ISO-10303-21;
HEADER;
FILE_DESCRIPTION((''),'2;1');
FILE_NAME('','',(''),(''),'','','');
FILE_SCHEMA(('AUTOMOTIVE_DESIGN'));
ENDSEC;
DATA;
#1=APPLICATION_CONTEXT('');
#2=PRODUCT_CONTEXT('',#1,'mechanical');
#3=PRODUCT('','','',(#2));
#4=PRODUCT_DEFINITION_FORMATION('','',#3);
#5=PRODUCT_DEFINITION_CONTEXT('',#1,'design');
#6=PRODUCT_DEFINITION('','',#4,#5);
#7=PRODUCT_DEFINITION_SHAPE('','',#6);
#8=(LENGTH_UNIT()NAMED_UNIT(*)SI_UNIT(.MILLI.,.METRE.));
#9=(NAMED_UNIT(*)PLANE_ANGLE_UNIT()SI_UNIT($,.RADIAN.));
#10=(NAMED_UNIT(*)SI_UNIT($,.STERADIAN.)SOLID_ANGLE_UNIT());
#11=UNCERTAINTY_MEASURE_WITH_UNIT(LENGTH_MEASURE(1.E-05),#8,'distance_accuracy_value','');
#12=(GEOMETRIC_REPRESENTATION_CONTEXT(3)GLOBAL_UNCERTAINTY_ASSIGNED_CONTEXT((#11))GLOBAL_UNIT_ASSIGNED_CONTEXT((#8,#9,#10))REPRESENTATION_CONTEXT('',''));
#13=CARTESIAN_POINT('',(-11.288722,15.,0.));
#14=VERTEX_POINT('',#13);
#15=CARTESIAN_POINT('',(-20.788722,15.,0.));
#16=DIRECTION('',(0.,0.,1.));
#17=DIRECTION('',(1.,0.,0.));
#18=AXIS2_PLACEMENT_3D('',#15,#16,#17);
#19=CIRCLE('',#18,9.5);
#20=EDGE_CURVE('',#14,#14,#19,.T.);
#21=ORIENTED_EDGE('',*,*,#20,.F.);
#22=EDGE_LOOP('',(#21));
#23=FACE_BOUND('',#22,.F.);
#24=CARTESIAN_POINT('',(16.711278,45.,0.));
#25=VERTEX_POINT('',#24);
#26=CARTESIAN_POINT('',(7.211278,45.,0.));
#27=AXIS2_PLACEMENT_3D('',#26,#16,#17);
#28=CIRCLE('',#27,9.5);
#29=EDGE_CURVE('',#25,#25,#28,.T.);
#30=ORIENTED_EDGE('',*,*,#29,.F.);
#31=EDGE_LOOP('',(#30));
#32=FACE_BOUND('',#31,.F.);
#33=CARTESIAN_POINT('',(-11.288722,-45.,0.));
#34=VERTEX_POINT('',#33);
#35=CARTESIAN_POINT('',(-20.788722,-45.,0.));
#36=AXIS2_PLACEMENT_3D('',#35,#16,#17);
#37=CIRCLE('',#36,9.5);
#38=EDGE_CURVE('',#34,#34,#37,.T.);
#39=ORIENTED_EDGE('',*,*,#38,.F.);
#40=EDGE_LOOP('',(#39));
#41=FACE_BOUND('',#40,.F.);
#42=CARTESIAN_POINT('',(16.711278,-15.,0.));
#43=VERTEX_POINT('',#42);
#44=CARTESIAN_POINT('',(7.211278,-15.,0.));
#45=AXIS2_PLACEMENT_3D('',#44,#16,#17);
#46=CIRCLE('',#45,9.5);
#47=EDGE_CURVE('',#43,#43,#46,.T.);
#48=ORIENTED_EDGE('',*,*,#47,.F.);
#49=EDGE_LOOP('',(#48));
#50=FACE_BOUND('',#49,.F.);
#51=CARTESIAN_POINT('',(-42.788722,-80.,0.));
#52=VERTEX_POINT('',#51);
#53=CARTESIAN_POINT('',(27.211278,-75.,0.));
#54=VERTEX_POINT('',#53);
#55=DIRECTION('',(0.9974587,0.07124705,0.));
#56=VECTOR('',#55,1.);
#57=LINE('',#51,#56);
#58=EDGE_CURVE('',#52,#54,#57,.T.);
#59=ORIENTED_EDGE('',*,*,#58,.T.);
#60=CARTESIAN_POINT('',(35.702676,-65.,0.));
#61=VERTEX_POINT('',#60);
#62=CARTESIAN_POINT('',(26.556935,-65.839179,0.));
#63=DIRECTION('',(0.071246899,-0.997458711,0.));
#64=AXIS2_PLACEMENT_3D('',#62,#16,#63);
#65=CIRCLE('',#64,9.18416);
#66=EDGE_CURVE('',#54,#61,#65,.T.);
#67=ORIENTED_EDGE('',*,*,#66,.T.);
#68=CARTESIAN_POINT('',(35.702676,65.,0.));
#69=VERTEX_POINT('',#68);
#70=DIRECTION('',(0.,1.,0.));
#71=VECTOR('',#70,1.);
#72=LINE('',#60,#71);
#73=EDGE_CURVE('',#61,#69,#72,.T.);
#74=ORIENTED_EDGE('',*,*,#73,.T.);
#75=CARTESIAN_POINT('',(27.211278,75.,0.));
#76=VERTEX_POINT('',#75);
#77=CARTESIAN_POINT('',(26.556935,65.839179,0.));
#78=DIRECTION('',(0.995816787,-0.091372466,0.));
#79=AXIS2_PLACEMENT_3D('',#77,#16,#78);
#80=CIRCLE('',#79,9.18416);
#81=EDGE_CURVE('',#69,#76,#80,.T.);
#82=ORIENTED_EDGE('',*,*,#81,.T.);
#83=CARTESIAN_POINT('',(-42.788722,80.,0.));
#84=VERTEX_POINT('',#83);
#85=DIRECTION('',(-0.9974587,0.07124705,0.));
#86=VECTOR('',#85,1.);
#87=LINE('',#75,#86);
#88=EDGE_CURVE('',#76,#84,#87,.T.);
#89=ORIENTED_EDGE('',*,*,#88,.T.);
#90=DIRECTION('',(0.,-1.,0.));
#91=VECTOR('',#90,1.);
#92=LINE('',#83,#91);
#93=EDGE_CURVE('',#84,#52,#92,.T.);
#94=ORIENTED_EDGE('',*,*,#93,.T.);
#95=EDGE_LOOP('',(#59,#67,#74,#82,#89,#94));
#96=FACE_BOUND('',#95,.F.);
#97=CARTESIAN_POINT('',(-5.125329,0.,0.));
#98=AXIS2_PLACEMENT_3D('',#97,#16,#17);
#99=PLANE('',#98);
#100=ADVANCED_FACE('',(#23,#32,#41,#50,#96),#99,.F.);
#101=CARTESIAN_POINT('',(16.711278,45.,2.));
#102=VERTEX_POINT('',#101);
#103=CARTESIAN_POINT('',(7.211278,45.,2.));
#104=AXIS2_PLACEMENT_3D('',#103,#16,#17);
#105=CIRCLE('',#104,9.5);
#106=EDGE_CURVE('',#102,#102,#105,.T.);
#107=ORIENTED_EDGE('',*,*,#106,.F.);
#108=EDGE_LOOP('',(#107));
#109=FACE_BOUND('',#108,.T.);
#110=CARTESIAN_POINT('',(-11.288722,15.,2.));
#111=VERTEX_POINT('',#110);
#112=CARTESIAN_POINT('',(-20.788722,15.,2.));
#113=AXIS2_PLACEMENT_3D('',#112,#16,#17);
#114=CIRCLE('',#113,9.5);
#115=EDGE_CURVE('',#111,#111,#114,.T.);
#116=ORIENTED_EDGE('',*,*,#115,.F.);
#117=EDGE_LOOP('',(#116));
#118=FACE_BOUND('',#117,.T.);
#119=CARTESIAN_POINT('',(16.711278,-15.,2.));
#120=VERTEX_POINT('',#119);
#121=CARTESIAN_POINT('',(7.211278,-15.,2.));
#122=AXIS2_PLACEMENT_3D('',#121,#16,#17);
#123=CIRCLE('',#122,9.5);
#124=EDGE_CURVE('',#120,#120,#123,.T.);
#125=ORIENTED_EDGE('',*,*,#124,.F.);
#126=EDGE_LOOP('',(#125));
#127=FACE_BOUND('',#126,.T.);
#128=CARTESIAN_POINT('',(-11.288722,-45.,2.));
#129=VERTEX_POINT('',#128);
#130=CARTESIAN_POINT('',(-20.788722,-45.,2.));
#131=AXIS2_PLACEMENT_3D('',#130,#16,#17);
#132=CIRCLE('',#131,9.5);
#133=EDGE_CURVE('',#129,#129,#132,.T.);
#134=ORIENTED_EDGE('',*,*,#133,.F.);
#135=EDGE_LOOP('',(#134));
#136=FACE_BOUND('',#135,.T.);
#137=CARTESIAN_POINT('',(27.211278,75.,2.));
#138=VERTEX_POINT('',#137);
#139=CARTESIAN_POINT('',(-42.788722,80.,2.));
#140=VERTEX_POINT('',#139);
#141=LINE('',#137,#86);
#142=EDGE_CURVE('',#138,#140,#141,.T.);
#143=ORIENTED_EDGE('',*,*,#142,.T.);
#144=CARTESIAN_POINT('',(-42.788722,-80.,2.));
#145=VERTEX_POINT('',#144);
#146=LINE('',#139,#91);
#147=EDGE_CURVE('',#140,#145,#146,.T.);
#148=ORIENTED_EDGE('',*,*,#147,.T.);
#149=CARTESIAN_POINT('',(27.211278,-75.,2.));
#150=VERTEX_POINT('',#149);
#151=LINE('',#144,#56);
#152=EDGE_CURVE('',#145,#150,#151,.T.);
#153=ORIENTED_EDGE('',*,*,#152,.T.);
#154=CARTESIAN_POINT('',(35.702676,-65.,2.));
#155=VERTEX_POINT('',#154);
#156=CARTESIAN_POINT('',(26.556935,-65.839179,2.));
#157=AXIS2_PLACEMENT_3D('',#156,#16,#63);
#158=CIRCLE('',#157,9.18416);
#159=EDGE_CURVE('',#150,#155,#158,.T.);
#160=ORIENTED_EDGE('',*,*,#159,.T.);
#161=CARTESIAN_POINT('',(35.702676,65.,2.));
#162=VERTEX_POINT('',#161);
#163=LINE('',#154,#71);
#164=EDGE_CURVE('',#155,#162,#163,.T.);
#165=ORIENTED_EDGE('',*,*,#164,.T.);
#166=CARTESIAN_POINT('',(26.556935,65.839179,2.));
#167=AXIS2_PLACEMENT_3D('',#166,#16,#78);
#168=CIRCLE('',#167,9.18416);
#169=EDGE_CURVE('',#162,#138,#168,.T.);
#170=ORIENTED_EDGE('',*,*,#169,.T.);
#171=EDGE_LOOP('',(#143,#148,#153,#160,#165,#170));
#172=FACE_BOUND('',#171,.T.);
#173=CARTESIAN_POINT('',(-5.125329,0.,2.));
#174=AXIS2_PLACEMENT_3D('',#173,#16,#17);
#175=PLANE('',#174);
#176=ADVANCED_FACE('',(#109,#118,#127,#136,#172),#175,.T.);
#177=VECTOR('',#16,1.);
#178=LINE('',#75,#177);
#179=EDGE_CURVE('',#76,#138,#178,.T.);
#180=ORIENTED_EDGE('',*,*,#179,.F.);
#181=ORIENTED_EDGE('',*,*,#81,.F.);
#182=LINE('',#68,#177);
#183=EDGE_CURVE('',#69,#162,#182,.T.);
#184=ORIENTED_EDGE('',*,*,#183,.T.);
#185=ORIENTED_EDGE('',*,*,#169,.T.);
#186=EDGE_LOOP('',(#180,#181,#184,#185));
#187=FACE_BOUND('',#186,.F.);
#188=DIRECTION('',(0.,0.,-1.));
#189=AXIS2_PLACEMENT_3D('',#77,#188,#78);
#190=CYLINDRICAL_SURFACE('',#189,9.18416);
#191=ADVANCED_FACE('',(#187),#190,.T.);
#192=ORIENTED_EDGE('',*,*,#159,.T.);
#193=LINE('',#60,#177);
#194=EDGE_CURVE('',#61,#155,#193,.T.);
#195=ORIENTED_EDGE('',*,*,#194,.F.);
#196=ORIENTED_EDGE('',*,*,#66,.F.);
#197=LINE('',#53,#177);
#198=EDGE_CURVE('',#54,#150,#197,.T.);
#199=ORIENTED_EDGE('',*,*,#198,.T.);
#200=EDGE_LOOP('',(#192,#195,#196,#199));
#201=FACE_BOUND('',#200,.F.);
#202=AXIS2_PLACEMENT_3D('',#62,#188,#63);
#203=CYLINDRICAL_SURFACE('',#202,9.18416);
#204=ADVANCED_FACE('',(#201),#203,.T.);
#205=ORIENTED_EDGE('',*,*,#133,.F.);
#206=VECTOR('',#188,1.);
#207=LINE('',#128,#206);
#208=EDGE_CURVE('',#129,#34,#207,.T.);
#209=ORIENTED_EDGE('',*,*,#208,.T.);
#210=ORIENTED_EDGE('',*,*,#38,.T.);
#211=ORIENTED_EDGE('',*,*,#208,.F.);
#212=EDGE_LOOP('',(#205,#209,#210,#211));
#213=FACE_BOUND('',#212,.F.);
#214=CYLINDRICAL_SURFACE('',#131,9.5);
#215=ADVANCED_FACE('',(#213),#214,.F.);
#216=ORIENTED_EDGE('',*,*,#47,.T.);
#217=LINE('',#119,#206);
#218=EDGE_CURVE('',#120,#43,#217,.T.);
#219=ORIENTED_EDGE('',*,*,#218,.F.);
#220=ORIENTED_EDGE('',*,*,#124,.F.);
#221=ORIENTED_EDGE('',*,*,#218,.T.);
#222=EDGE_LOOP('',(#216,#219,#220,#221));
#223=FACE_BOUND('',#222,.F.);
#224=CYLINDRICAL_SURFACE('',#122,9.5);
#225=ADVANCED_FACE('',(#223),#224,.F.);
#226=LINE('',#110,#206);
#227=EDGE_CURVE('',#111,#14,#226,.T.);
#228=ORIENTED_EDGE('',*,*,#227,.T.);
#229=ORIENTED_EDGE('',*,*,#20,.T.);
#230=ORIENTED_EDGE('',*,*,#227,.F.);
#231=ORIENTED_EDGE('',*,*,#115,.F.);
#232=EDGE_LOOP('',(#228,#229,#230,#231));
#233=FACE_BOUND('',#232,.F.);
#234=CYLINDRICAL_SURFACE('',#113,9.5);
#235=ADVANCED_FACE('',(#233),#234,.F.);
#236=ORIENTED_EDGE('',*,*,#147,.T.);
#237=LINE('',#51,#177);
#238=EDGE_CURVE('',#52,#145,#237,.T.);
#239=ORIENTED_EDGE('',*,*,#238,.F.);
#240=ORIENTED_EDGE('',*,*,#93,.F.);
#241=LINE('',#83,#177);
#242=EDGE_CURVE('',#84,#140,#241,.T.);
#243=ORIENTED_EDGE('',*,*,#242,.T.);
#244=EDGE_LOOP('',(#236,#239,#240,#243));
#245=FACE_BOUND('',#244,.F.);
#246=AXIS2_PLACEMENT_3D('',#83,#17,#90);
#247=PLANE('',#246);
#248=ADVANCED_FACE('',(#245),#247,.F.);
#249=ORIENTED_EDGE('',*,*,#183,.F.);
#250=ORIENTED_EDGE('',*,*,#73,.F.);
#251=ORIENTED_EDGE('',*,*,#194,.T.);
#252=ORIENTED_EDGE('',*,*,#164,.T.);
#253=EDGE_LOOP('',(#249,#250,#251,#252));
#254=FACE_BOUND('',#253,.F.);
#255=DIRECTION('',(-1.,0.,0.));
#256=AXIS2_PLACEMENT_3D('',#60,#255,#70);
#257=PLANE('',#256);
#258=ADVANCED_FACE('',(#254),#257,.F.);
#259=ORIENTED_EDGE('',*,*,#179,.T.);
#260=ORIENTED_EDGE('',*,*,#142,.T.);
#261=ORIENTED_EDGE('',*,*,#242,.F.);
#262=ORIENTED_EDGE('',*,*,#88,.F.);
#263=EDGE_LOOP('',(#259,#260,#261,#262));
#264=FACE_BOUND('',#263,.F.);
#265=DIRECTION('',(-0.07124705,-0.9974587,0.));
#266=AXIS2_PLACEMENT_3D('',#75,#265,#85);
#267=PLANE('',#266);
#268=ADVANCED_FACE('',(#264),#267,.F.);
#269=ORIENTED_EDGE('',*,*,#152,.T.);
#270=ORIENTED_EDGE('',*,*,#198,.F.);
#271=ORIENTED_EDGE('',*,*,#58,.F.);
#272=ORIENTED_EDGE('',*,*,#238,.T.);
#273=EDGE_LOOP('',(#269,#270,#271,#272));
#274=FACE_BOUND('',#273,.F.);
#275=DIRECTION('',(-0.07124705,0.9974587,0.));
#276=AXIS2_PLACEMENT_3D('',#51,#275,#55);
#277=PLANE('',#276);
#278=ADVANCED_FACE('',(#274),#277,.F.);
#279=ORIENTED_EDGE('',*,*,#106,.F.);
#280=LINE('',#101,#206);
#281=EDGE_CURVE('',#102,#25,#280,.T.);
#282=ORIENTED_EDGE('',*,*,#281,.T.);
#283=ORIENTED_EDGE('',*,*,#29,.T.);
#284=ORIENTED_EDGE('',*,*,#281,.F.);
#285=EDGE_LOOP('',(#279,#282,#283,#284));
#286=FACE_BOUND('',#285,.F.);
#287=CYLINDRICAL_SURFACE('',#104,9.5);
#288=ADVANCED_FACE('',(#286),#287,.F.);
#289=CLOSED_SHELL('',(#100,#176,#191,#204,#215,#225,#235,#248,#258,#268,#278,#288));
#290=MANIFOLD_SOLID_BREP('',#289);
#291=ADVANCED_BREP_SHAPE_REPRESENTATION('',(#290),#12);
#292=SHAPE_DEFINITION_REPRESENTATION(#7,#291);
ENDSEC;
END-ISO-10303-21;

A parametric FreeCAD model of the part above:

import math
import FreeCAD as App
import Part
import Sketcher
from FreeCAD import Vector

doc = App.newDocument("Part")
body = doc.addObject("PartDesign::Body", "Body")

# Sketch on XY plane
sketch1 = doc.addObject("Sketcher::SketchObject", "Sketch")
body.addObject(sketch1)
sketch1.AttachmentSupport = (doc.XY_Plane, [""])
sketch1.MapMode = "FlatFace"
sketch1.addGeometry([
    Part.LineSegment(Vector(27, 75, 0), Vector(-43, 80, 0)),  # 0
    Part.LineSegment(Vector(-43, 80, 0), Vector(-43, -80, 0)),  # 1
    Part.LineSegment(Vector(-43, -80, 0), Vector(27, -75, 0)),  # 2
    Part.ArcOfCircle(Part.Circle(Vector(27, -66, 0), Vector(0, 0, 1), 9), math.radians(-86), math.radians(5)),  # 3
    Part.LineSegment(Vector(36, -65, 0), Vector(36, 65, 0)),  # 4
    Part.ArcOfCircle(Part.Circle(Vector(27, 66, 0), Vector(0, 0, 1), 9), math.radians(-5), math.radians(86)),  # 5
], False)
sketch1.addConstraint([
    Sketcher.Constraint("Coincident", 0, 2, 1, 1),
    Sketcher.Constraint("Coincident", 1, 2, 2, 1),
    Sketcher.Constraint("Tangent", 2, 2, 3, 1),
    Sketcher.Constraint("Coincident", 3, 2, 4, 1),
    Sketcher.Constraint("Coincident", 4, 2, 5, 1),
    Sketcher.Constraint("Tangent", 5, 2, 0, 1),
    Sketcher.Constraint("Vertical", 1),
    Sketcher.Constraint("Vertical", 4),
    Sketcher.Constraint("Equal", 3, 5),
    Sketcher.Constraint("Symmetric", 3, 3, 5, 3, -1),
    Sketcher.Constraint("Vertical", 2, 2, 5, 2),
    Sketcher.Constraint("DistanceY", 1, 2, 1, 1, 160.0),
    Sketcher.Constraint("DistanceY", 4, 1, 4, 2, 130.0),
    Sketcher.Constraint("DistanceY", 2, 2, -1, 1, 75.0),
    Sketcher.Constraint("DistanceX", 1, 2, 2, 2, 70.0),
    Sketcher.Constraint("Radius", 3, 9.18416),
    Sketcher.Constraint("DistanceX", -1, 1, 2, 2, 27.211278),
])
pad1 = doc.addObject("PartDesign::Pad", "Pad")
body.addObject(pad1)
pad1.Profile = sketch1
pad1.Length = 2

# Sketch on XY plane
sketch2 = doc.addObject("Sketcher::SketchObject", "Sketch001")
body.addObject(sketch2)
sketch2.AttachmentSupport = (doc.XY_Plane, [""])
sketch2.MapMode = "FlatFace"
sketch2.AttachmentOffset = App.Placement(Vector(0, 0, 2), App.Rotation())
sketch2.addGeometry([
    Part.Circle(Vector(7, 45, 0), Vector(0, 0, 1), 10),
    Part.Circle(Vector(-21, 15, 0), Vector(0, 0, 1), 10),
    Part.Circle(Vector(7, -15, 0), Vector(0, 0, 1), 10),
    Part.Circle(Vector(-21, -45, 0), Vector(0, 0, 1), 10),
], False)
sketch2.addConstraint([
    Sketcher.Constraint("Equal", 0, 1),
    Sketcher.Constraint("Equal", 1, 2),
    Sketcher.Constraint("Equal", 2, 3),
    Sketcher.Constraint("Vertical", 0, 3, 2, 3),
    Sketcher.Constraint("Vertical", 1, 3, 3, 3),
    Sketcher.Constraint("Diameter", 0, 19.0),
    Sketcher.Constraint("DistanceY", -1, 1, 0, 3, 45.0),
    Sketcher.Constraint("DistanceY", -1, 1, 1, 3, 15.0),
    Sketcher.Constraint("DistanceY", 2, 3, -1, 1, 15.0),
    Sketcher.Constraint("DistanceY", 3, 3, -1, 1, 45.0),
    Sketcher.Constraint("DistanceX", 1, 3, 0, 3, 28.0),
    Sketcher.Constraint("DistanceX", 1, 3, -1, 1, 20.788722),
])
pocket1 = doc.addObject("PartDesign::Pocket", "Pocket")
body.addObject(pocket1)
pocket1.Profile = sketch2
pocket1.Type = "ThroughAll"

doc.recompute()
